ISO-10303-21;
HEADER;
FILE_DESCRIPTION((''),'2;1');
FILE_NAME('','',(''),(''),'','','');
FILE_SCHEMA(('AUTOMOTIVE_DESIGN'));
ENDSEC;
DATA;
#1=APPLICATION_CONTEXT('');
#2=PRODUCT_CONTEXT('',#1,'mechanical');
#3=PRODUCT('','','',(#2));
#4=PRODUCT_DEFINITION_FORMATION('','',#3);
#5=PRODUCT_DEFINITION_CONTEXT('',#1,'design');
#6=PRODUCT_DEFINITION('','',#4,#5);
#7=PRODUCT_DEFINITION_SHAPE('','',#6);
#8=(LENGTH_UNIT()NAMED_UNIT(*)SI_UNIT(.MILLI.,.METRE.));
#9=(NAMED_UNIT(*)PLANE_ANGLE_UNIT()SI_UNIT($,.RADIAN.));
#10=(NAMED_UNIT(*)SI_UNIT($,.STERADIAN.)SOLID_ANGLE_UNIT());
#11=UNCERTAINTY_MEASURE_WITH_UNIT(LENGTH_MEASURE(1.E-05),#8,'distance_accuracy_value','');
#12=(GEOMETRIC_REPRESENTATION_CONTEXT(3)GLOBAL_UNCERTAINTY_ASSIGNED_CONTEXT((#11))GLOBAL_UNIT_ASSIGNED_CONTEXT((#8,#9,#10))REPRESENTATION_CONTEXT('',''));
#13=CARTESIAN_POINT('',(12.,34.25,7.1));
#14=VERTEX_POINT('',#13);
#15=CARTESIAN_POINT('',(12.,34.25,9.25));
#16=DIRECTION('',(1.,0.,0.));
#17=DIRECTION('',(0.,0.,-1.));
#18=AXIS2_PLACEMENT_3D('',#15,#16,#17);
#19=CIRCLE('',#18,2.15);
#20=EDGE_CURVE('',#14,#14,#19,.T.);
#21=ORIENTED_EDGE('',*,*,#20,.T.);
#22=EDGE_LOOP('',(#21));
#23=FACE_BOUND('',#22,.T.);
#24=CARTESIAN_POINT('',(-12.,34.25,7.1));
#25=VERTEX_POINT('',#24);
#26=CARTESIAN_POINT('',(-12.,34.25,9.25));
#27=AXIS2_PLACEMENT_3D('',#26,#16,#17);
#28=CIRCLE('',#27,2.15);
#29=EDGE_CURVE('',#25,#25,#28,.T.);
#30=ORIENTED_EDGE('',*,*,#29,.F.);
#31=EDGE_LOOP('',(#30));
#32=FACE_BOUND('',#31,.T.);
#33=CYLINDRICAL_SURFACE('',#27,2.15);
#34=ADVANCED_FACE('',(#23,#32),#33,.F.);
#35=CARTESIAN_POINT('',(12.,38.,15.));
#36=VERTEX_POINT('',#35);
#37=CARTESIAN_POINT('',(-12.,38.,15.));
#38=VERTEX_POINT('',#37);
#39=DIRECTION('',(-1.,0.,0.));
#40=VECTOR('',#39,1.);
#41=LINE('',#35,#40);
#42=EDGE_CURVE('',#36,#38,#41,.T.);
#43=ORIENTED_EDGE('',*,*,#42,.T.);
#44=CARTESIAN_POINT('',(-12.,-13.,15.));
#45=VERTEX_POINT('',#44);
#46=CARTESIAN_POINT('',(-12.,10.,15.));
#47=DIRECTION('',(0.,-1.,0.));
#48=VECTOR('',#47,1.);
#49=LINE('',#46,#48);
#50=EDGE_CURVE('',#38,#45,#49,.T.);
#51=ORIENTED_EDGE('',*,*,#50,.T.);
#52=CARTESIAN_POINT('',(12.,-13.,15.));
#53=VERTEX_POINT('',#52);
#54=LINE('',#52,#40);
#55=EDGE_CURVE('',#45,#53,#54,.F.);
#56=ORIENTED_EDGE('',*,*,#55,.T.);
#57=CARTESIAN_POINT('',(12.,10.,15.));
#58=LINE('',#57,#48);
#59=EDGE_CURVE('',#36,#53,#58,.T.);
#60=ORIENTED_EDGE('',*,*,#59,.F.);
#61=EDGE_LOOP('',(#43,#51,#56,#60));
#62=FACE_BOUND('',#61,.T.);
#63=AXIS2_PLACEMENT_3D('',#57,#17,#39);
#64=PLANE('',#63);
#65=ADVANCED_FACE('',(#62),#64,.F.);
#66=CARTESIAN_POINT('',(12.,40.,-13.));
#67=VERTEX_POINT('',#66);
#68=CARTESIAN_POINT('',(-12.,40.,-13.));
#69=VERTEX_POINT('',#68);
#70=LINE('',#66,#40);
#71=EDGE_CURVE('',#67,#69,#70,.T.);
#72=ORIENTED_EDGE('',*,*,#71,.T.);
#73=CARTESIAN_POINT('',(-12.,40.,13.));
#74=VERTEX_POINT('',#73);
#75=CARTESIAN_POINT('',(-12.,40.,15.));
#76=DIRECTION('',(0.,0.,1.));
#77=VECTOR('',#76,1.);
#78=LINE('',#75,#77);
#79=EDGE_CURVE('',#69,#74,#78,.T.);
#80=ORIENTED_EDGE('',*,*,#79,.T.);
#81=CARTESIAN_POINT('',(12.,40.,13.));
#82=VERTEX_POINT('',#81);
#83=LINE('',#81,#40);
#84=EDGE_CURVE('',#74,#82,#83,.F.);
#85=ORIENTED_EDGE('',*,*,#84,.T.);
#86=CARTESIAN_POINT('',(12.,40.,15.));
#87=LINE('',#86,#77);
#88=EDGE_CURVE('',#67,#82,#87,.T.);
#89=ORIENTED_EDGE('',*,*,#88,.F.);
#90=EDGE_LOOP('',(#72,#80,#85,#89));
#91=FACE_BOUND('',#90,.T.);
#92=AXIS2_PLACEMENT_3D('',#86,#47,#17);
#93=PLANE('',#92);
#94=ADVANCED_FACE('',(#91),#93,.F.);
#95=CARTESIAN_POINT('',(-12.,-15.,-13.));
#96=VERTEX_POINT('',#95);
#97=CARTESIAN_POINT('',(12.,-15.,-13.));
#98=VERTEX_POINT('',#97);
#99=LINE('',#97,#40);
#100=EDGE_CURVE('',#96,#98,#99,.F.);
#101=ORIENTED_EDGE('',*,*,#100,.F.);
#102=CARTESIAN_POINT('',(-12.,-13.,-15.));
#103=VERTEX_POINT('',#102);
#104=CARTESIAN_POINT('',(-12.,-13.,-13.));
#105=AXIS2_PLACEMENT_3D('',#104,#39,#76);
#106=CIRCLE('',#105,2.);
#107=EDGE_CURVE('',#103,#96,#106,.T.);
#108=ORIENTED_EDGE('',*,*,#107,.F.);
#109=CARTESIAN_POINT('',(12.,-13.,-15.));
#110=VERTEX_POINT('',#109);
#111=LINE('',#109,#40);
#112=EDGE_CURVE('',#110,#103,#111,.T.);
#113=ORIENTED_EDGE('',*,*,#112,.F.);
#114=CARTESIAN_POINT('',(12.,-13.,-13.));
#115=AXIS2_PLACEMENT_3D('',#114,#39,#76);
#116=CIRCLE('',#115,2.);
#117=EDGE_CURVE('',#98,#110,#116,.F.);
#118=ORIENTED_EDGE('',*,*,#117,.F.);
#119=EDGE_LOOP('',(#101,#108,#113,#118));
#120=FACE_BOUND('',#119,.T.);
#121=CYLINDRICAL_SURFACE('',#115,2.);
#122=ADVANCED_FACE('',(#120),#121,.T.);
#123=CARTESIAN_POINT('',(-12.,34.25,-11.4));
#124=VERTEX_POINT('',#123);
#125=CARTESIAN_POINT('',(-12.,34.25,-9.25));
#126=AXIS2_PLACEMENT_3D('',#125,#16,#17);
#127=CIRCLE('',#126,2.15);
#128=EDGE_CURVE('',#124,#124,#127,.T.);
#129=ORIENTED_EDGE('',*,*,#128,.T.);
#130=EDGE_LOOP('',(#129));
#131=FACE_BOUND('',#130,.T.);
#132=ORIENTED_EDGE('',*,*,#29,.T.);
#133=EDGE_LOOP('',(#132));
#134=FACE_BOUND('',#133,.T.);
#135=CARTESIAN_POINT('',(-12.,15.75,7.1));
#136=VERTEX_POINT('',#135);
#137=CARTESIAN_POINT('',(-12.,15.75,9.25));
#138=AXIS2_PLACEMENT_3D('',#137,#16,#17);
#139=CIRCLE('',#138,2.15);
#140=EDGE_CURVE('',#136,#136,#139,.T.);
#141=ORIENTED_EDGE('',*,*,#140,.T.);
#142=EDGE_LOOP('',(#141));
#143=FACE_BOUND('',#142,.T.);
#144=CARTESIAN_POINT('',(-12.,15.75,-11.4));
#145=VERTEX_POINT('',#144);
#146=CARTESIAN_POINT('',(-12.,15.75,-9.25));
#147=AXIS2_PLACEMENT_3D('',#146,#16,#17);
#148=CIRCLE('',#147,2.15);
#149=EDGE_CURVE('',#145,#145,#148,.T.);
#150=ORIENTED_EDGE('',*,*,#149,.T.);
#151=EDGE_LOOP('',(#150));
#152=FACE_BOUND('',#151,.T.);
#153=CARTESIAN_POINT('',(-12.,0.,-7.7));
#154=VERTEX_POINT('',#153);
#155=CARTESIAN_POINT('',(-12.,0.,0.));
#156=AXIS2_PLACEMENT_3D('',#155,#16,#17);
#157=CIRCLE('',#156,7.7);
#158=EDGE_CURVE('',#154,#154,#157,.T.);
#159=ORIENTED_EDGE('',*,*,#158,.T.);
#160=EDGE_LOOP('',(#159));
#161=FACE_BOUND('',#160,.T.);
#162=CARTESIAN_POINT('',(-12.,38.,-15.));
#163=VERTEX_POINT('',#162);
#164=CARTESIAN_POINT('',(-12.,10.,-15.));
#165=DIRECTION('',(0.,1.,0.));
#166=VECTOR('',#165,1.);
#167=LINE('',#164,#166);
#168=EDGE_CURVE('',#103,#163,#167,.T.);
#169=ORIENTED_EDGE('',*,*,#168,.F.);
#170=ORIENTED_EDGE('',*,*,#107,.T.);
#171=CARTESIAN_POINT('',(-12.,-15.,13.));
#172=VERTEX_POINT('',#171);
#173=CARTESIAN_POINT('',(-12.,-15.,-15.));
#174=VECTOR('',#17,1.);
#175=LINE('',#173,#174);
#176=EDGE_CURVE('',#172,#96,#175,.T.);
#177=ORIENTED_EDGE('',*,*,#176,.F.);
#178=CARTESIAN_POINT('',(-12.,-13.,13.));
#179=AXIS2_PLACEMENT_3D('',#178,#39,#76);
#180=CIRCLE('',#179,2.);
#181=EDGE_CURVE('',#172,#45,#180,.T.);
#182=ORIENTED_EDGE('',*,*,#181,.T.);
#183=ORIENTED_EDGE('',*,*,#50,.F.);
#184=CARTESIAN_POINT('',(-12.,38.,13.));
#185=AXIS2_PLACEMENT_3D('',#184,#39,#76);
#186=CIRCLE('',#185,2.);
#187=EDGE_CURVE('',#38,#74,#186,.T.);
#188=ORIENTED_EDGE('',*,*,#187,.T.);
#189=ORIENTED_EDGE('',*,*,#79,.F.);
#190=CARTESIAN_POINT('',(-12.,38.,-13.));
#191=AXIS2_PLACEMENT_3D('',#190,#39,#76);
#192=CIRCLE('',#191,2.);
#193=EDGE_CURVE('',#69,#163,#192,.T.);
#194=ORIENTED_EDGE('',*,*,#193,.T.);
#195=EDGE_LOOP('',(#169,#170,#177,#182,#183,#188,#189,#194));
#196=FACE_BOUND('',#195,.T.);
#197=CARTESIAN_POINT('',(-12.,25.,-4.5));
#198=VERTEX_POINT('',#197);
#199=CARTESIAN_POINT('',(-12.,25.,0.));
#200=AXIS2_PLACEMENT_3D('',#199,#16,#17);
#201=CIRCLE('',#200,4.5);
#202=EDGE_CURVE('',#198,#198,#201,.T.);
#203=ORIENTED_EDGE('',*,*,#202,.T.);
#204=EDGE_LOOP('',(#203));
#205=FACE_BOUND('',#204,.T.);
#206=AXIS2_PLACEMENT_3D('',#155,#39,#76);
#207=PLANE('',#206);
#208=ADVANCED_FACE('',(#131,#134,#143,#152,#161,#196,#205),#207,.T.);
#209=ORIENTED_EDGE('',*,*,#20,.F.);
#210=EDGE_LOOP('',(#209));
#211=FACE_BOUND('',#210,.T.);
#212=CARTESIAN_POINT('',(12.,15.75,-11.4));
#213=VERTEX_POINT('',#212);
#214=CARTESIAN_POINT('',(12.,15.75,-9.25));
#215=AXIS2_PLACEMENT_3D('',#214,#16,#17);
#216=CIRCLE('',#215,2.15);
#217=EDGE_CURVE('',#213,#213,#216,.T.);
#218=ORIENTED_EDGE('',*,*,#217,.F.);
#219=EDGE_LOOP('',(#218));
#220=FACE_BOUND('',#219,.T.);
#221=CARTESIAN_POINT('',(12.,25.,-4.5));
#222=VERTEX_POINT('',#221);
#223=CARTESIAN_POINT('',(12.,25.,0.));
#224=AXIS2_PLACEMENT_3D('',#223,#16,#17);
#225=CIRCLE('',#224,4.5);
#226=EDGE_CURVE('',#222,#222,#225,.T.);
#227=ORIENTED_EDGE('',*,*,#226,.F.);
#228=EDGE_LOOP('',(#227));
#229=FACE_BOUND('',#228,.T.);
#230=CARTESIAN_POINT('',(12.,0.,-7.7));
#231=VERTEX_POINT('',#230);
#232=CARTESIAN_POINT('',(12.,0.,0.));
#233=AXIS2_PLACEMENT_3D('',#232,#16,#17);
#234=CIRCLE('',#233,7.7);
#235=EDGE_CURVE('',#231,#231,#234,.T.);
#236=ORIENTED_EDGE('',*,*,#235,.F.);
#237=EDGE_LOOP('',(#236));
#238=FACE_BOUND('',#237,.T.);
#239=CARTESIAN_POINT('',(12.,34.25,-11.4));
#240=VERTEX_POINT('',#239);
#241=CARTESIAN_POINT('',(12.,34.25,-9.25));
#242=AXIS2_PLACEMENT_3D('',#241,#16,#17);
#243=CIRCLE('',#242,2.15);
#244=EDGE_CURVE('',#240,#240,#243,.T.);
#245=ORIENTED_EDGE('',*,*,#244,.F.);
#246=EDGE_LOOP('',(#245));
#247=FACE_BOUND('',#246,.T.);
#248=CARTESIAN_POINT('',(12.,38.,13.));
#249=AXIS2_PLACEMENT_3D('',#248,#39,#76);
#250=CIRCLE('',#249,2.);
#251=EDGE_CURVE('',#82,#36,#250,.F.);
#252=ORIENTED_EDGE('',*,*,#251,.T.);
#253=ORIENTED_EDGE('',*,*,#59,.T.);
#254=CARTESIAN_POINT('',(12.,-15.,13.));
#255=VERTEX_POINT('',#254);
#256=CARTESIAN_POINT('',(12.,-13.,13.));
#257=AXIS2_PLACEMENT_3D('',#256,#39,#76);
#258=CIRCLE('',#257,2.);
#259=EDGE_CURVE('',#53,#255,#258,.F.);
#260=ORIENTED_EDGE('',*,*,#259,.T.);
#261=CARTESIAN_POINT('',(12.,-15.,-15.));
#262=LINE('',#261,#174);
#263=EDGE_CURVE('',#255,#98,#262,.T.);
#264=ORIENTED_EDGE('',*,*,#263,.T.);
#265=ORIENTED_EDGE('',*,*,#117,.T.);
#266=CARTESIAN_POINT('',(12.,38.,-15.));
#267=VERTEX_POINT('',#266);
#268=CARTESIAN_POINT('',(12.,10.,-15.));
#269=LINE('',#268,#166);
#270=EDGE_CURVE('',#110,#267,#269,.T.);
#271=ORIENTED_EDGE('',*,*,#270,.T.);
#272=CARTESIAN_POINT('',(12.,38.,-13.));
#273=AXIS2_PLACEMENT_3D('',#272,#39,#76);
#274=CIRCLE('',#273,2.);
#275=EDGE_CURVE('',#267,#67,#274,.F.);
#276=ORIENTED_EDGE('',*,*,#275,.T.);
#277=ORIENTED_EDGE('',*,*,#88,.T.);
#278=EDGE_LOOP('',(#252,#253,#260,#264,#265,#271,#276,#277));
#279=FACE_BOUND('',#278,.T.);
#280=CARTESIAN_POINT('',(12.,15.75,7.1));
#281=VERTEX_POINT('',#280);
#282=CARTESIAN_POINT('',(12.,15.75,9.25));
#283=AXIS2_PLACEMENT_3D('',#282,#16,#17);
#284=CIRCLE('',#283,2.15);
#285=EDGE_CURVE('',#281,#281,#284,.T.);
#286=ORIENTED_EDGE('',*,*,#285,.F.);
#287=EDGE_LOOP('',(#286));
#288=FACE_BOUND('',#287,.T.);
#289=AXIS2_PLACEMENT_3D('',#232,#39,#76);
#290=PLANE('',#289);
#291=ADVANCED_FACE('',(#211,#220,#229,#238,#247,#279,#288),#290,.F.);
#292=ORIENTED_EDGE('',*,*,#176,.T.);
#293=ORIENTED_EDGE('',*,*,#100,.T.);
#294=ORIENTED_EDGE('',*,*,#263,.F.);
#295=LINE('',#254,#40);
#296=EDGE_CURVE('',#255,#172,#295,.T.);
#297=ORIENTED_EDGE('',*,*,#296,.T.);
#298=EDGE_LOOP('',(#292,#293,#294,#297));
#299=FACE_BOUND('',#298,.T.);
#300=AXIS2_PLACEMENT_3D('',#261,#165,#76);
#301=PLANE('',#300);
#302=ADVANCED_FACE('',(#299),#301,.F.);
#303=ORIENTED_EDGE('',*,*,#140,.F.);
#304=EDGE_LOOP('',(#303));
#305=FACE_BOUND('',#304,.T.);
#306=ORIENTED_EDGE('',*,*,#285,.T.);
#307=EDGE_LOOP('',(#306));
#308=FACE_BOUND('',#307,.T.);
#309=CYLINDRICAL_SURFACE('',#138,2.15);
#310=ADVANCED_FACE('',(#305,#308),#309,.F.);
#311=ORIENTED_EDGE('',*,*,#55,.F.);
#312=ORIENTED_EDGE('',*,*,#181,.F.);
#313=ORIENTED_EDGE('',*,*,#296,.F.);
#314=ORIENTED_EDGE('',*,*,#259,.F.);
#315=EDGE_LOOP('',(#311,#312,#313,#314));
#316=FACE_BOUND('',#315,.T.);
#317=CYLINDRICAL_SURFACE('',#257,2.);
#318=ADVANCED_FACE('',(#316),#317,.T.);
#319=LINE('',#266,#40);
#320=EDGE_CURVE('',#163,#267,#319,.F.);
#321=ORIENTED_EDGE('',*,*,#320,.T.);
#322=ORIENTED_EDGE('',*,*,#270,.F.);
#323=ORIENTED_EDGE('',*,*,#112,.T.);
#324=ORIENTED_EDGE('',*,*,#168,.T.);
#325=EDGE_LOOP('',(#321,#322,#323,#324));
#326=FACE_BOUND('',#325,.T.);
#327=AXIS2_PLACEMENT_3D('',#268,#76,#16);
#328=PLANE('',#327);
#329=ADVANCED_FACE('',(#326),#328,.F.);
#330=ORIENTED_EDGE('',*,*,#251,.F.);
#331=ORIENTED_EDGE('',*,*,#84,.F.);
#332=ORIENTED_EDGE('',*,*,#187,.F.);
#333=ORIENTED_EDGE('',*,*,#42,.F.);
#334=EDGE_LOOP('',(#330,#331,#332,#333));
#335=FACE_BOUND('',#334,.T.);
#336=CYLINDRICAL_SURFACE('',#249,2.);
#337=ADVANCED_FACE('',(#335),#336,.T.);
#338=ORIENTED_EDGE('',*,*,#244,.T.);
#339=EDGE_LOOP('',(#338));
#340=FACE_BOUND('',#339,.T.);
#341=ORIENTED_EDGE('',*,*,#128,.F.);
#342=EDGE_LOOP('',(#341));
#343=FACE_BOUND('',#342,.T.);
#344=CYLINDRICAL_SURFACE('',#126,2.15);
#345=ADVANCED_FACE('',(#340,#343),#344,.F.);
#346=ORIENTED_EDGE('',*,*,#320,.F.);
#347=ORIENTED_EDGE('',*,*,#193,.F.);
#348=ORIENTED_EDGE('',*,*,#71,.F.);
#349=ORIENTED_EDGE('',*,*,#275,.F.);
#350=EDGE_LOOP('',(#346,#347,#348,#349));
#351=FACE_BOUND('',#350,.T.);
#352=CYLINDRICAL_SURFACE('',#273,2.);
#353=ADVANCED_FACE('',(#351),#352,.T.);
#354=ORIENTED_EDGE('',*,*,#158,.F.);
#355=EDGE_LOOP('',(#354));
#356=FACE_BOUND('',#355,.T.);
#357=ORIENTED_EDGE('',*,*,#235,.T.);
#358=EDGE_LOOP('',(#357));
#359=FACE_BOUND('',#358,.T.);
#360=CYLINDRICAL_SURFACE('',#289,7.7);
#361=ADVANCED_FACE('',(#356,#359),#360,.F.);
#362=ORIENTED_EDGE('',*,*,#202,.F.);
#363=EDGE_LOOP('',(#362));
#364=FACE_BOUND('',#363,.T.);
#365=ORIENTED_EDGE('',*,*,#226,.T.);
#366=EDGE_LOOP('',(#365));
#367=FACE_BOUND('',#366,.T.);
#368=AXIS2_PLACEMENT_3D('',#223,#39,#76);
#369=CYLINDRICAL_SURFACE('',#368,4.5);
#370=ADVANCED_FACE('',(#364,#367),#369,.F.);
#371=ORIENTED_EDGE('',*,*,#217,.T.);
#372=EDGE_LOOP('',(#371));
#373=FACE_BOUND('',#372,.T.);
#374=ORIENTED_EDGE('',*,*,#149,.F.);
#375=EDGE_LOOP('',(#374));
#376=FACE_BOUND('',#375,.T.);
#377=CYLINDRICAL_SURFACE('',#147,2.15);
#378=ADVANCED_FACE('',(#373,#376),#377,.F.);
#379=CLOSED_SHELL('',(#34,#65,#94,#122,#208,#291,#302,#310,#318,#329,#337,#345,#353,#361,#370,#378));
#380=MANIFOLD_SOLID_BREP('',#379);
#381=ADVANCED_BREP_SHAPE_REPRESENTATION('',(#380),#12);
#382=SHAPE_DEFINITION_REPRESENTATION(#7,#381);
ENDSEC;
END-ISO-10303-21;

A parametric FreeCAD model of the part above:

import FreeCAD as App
import Part
import Sketcher


def edges_at(feature, points):
    """Names of the edges that pass closest to the given points."""
    edges = feature.Shape.Edges
    near = lambda p: min(range(len(edges)), key=lambda i: edges[i].distToShape(Part.Vertex(*p))[0])
    return sorted({f"Edge{near(p) + 1}" for p in points})


def add_polygon(sketch, points):
    """Adds a closed chain of lines whose ends are joined by coincident constraints."""
    first, n = sketch.GeometryCount, len(points)
    for a, b in zip(points, points[1:] + points[:1]):
        sketch.addGeometry(Part.LineSegment(App.Vector(*a, 0), App.Vector(*b, 0)), False)
    for i in range(n):
        sketch.addConstraint(Sketcher.Constraint("Coincident", first + i, 2, first + (i + 1) % n, 1))

doc = App.newDocument("Part")
body = doc.addObject("PartDesign::Body", "Body")

# Sketch on YZ plane
sketch1 = body.newObject("Sketcher::SketchObject", "Sketch")
sketch1.AttachmentSupport = (doc.getObject("YZ_Plane"), [""])
sketch1.MapMode = "FlatFace"
add_polygon(sketch1, [(-15, -15), (40, -15), (40, 15), (-15, 15)])  # lines 0-3
sketch1.addGeometry(Part.Circle(App.Vector(0, 0, 0), App.Vector(0, 0, 1), 7.7), False)  # 4
sketch1.addGeometry(Part.Circle(App.Vector(25, 0, 0), App.Vector(0, 0, 1), 4.5), False)  # 5
sketch1.addConstraint(Sketcher.Constraint("Horizontal", 0))
sketch1.addConstraint(Sketcher.Constraint("Vertical", 1))
sketch1.addConstraint(Sketcher.Constraint("Horizontal", 2))
sketch1.addConstraint(Sketcher.Constraint("Vertical", 3))
sketch1.addConstraint(Sketcher.Constraint("Coincident", 4, 3, -1, 1))
sketch1.addConstraint(Sketcher.Constraint("PointOnObject", 5, 3, -1))
sketch1.addConstraint(Sketcher.Constraint("Diameter", 5, 9.0))
sketch1.addConstraint(Sketcher.Constraint("Diameter", 4, 15.4))
sketch1.addConstraint(Sketcher.Constraint("DistanceX", 0, 1, 0, 2, 55.0))
sketch1.addConstraint(Sketcher.Constraint("DistanceY", 1, 1, 1, 2, 30.0))
sketch1.addConstraint(Sketcher.Constraint("DistanceX", -1, 1, 5, 3, 25.0))
sketch1.addConstraint(Sketcher.Constraint("DistanceX", -1, 1, 0, 2, 40.0))
sketch1.addConstraint(Sketcher.Constraint("DistanceY", 0, 2, -1, 1, 15.0))
pad1 = body.newObject("PartDesign::Pad", "Pad")
pad1.Profile = sketch1
pad1.Length = 24
pad1.Midplane = True

# Sketch on YZ plane
sketch2 = body.newObject("Sketcher::SketchObject", "Sketch001")
sketch2.AttachmentSupport = (doc.getObject("YZ_Plane"), [""])
sketch2.MapMode = "FlatFace"
sketch2.AttachmentOffset = App.Placement(App.Vector(0, 0, 12), App.Rotation())
sketch2.addGeometry(Part.Circle(App.Vector(34.2, 9.2, 0), App.Vector(0, 0, 1), 2.1), False)
sketch2.addGeometry(Part.Circle(App.Vector(15.8, 9.2, 0), App.Vector(0, 0, 1), 2.1), False)
sketch2.addGeometry(Part.Circle(App.Vector(34.2, -9.2, 0), App.Vector(0, 0, 1), 2.1), False)
sketch2.addGeometry(Part.Circle(App.Vector(15.8, -9.2, 0), App.Vector(0, 0, 1), 2.1), False)
sketch2.addConstraint(Sketcher.Constraint("Equal", 0, 1))
sketch2.addConstraint(Sketcher.Constraint("Equal", 1, 2))
sketch2.addConstraint(Sketcher.Constraint("Equal", 2, 3))
sketch2.addConstraint(Sketcher.Constraint("Symmetric", 0, 3, 2, 3, -1))
sketch2.addConstraint(Sketcher.Constraint("Symmetric", 1, 3, 3, 3, -1))
sketch2.addConstraint(Sketcher.Constraint("Horizontal", 0, 3, 1, 3))
sketch2.addConstraint(Sketcher.Constraint("Diameter", 0, 4.3))
sketch2.addConstraint(Sketcher.Constraint("DistanceX", 1, 3, 0, 3, 18.5))
sketch2.addConstraint(Sketcher.Constraint("DistanceY", 2, 3, 0, 3, 18.5))
sketch2.addConstraint(Sketcher.Constraint("DistanceX", -1, 1, 0, 3, 34.25))
pocket1 = body.newObject("PartDesign::Pocket", "Pocket")
pocket1.Profile = sketch2
pocket1.Type = "ThroughAll"
doc.recompute()

fillet = body.newObject("PartDesign::Fillet", "Fillet")
fillet.Base = (pocket1, edges_at(pocket1, [
    (0, 40, 15),
    (0, 40, -15),
    (0, -15, -15),
    (0, -15, 15),
]))
fillet.Radius = 2

doc.recompute()
